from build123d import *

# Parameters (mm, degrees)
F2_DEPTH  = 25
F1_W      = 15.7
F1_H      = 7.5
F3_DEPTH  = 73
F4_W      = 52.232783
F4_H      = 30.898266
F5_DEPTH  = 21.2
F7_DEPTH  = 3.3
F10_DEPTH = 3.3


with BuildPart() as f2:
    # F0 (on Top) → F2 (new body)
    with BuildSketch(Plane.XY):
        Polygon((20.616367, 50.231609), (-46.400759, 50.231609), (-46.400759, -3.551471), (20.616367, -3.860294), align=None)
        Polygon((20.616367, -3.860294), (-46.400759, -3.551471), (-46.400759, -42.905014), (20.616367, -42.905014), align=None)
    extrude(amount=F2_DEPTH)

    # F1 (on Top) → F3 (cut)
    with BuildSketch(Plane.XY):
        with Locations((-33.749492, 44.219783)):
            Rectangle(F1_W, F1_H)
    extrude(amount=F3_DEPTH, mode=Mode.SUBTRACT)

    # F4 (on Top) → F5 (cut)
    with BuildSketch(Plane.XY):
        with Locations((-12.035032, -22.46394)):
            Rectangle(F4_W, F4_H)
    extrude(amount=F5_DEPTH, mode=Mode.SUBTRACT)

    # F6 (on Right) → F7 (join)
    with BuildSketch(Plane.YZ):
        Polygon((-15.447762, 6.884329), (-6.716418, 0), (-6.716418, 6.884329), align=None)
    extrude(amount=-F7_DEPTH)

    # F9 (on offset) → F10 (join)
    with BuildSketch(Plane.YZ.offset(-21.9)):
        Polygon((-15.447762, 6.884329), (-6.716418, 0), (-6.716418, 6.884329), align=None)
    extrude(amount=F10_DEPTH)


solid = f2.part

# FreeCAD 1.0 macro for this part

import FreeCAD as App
import Part
import Sketcher
from FreeCAD import Vector

doc = App.newDocument("Part")
body = doc.addObject("PartDesign::Body", "Body")

sketch1 = doc.addObject("Sketcher::SketchObject", "Sketch")
body.addObject(sketch1)
sketch1.AttachmentSupport = (doc.XY_Plane, [""])
sketch1.MapMode = "FlatFace"
sketch1.addGeometry(Part.LineSegment(Vector(21, 50, 0), Vector(-46, 50, 0)), False)
sketch1.addGeometry(Part.LineSegment(Vector(-46, 50, 0), Vector(-46, -43, 0)), False)
sketch1.addGeometry(Part.LineSegment(Vector(-46, -43, 0), Vector(21, -43, 0)), False)
sketch1.addGeometry(Part.LineSegment(Vector(21, -43, 0), Vector(21, 50, 0)), False)
sketch1.addConstraint(Sketcher.Constraint("Coincident", 0, 2, 1, 1))
sketch1.addConstraint(Sketcher.Constraint("Coincident", 1, 2, 2, 1))
sketch1.addConstraint(Sketcher.Constraint("Coincident", 2, 2, 3, 1))
sketch1.addConstraint(Sketcher.Constraint("Coincident", 3, 2, 0, 1))
sketch1.addConstraint(Sketcher.Constraint("Horizontal", 0))
sketch1.addConstraint(Sketcher.Constraint("Vertical", 1))
sketch1.addConstraint(Sketcher.Constraint("Horizontal", 2))
sketch1.addConstraint(Sketcher.Constraint("Vertical", 3))
sketch1.addConstraint(Sketcher.Constraint("DistanceX", 0, 2, 0, 1, 67.017126))
sketch1.addConstraint(Sketcher.Constraint("DistanceY", 1, 2, 1, 1, 93.136623))
sketch1.addConstraint(Sketcher.Constraint("DistanceX", 0, 2, -1, 1, 46.400759))
sketch1.addConstraint(Sketcher.Constraint("DistanceY", -1, 1, 0, 2, 50.231609))
pad1 = doc.addObject("PartDesign::Pad", "Pad")
body.addObject(pad1)
pad1.Profile = sketch1
pad1.Length = 25

sketch2 = doc.addObject("Sketcher::SketchObject", "Sketch001")
body.addObject(sketch2)
sketch2.AttachmentSupport = (doc.XY_Plane, [""])
sketch2.MapMode = "FlatFace"
sketch2.addGeometry(Part.LineSegment(Vector(-42, 48, 0), Vector(-42, 40, 0)), False)
sketch2.addGeometry(Part.LineSegment(Vector(-42, 40, 0), Vector(-26, 40, 0)), False)
sketch2.addGeometry(Part.LineSegment(Vector(-26, 40, 0), Vector(-26, 48, 0)), False)
sketch2.addGeometry(Part.LineSegment(Vector(-26, 48, 0), Vector(-42, 48, 0)), False)
sketch2.addConstraint(Sketcher.Constraint("Coincident", 0, 2, 1, 1))
sketch2.addConstraint(Sketcher.Constraint("Coincident", 1, 2, 2, 1))
sketch2.addConstraint(Sketcher.Constraint("Coincident", 2, 2, 3, 1))
sketch2.addConstraint(Sketcher.Constraint("Coincident", 3, 2, 0, 1))
sketch2.addConstraint(Sketcher.Constraint("Vertical", 0))
sketch2.addConstraint(Sketcher.Constraint("Horizontal", 1))
sketch2.addConstraint(Sketcher.Constraint("Vertical", 2))
sketch2.addConstraint(Sketcher.Constraint("Horizontal", 3))
sketch2.addConstraint(Sketcher.Constraint("DistanceX", 1, 1, 1, 2, 15.7))
sketch2.addConstraint(Sketcher.Constraint("DistanceY", 0, 2, 0, 1, 7.5))
sketch2.addConstraint(Sketcher.Constraint("DistanceX", 0, 2, -1, 1, 41.599492))
sketch2.addConstraint(Sketcher.Constraint("DistanceY", -1, 1, 0, 2, 40.469783))
pocket1 = doc.addObject("PartDesign::Pocket", "Pocket")
body.addObject(pocket1)
pocket1.Profile = sketch2
pocket1.Length = 73
pocket1.Reversed = True

sketch3 = doc.addObject("Sketcher::SketchObject", "Sketch002")
body.addObject(sketch3)
sketch3.AttachmentSupport = (doc.XY_Plane, [""])
sketch3.MapMode = "FlatFace"
sketch3.addGeometry(Part.LineSegment(Vector(-38, -7, 0), Vector(-38, -38, 0)), False)
sketch3.addGeometry(Part.LineSegment(Vector(-38, -38, 0), Vector(14, -38, 0)), False)
sketch3.addGeometry(Part.LineSegment(Vector(14, -38, 0), Vector(14, -7, 0)), False)
sketch3.addGeometry(Part.LineSegment(Vector(14, -7, 0), Vector(-38, -7, 0)), False)
sketch3.addConstraint(Sketcher.Constraint("Coincident", 0, 2, 1, 1))
sketch3.addConstraint(Sketcher.Constraint("Coincident", 1, 2, 2, 1))
sketch3.addConstraint(Sketcher.Constraint("Coincident", 2, 2, 3, 1))
sketch3.addConstraint(Sketcher.Constraint("Coincident", 3, 2, 0, 1))
sketch3.addConstraint(Sketcher.Constraint("Vertical", 0))
sketch3.addConstraint(Sketcher.Constraint("Horizontal", 1))
sketch3.addConstraint(Sketcher.Constraint("Vertical", 2))
sketch3.addConstraint(Sketcher.Constraint("Horizontal", 3))
sketch3.addConstraint(Sketcher.Constraint("DistanceX", 1, 1, 1, 2, 52.232783))
sketch3.addConstraint(Sketcher.Constraint("DistanceY", 0, 2, 0, 1, 30.898266))
sketch3.addConstraint(Sketcher.Constraint("DistanceX", -1, 1, 1, 2, 14.081359))
sketch3.addConstraint(Sketcher.Constraint("DistanceY", 0, 2, -1, 1, 37.913073))
pocket2 = doc.addObject("PartDesign::Pocket", "Pocket001")
body.addObject(pocket2)
pocket2.Profile = sketch3
pocket2.Length = 21.2
pocket2.Reversed = True

sketch4 = doc.addObject("Sketcher::SketchObject", "Sketch003")
body.addObject(sketch4)
sketch4.AttachmentSupport = (doc.YZ_Plane, [""])
sketch4.MapMode = "FlatFace"
sketch4.addGeometry(Part.LineSegment(Vector(-15, 7, 0), Vector(-7, 0, 0)), False)
sketch4.addGeometry(Part.LineSegment(Vector(-7, 0, 0), Vector(-7, 7, 0)), False)
sketch4.addGeometry(Part.LineSegment(Vector(-7, 7, 0), Vector(-15, 7, 0)), False)
sketch4.addConstraint(Sketcher.Constraint("Coincident", 0, 2, 1, 1))
sketch4.addConstraint(Sketcher.Constraint("Coincident", 1, 2, 2, 1))
sketch4.addConstraint(Sketcher.Constraint("Coincident", 2, 2, 0, 1))
sketch4.addConstraint(Sketcher.Constraint("Vertical", 1))
sketch4.addConstraint(Sketcher.Constraint("Horizontal", 2))
sketch4.addConstraint(Sketcher.Constraint("PointOnObject", 0, 2, -1))
sketch4.addConstraint(Sketcher.Constraint("DistanceY", 1, 1, 1, 2, 6.884329))
sketch4.addConstraint(Sketcher.Constraint("Distance", 0, 11.118919))
sketch4.addConstraint(Sketcher.Constraint("DistanceX", 0, 2, -1, 1, 6.716418))
pad2 = doc.addObject("PartDesign::Pad", "Pad001")
body.addObject(pad2)
pad2.Profile = sketch4
pad2.Length = 3.3
pad2.Reversed = True

sketch5 = doc.addObject("Sketcher::SketchObject", "Sketch004")
body.addObject(sketch5)
sketch5.AttachmentSupport = (doc.YZ_Plane, [""])
sketch5.MapMode = "FlatFace"
sketch5.AttachmentOffset = App.Placement(Vector(0, 0, -21.9), App.Rotation())
sketch5.addGeometry(Part.LineSegment(Vector(-15, 7, 0), Vector(-7, 0, 0)), False)
sketch5.addGeometry(Part.LineSegment(Vector(-7, 0, 0), Vector(-7, 7, 0)), False)
sketch5.addGeometry(Part.LineSegment(Vector(-7, 7, 0), Vector(-15, 7, 0)), False)
sketch5.addConstraint(Sketcher.Constraint("Coincident", 0, 2, 1, 1))
sketch5.addConstraint(Sketcher.Constraint("Coincident", 1, 2, 2, 1))
sketch5.addConstraint(Sketcher.Constraint("Coincident", 2, 2, 0, 1))
sketch5.addConstraint(Sketcher.Constraint("Vertical", 1))
sketch5.addConstraint(Sketcher.Constraint("Horizontal", 2))
sketch5.addConstraint(Sketcher.Constraint("PointOnObject", 0, 2, -1))
sketch5.addConstraint(Sketcher.Constraint("DistanceY", 1, 1, 1, 2, 6.884329))
sketch5.addConstraint(Sketcher.Constraint("Distance", 0, 11.118919))
sketch5.addConstraint(Sketcher.Constraint("DistanceX", 0, 2, -1, 1, 6.716418))
pad3 = doc.addObject("PartDesign::Pad", "Pad002")
body.addObject(pad3)
pad3.Profile = sketch5
pad3.Length = 3.3

doc.recompute()
